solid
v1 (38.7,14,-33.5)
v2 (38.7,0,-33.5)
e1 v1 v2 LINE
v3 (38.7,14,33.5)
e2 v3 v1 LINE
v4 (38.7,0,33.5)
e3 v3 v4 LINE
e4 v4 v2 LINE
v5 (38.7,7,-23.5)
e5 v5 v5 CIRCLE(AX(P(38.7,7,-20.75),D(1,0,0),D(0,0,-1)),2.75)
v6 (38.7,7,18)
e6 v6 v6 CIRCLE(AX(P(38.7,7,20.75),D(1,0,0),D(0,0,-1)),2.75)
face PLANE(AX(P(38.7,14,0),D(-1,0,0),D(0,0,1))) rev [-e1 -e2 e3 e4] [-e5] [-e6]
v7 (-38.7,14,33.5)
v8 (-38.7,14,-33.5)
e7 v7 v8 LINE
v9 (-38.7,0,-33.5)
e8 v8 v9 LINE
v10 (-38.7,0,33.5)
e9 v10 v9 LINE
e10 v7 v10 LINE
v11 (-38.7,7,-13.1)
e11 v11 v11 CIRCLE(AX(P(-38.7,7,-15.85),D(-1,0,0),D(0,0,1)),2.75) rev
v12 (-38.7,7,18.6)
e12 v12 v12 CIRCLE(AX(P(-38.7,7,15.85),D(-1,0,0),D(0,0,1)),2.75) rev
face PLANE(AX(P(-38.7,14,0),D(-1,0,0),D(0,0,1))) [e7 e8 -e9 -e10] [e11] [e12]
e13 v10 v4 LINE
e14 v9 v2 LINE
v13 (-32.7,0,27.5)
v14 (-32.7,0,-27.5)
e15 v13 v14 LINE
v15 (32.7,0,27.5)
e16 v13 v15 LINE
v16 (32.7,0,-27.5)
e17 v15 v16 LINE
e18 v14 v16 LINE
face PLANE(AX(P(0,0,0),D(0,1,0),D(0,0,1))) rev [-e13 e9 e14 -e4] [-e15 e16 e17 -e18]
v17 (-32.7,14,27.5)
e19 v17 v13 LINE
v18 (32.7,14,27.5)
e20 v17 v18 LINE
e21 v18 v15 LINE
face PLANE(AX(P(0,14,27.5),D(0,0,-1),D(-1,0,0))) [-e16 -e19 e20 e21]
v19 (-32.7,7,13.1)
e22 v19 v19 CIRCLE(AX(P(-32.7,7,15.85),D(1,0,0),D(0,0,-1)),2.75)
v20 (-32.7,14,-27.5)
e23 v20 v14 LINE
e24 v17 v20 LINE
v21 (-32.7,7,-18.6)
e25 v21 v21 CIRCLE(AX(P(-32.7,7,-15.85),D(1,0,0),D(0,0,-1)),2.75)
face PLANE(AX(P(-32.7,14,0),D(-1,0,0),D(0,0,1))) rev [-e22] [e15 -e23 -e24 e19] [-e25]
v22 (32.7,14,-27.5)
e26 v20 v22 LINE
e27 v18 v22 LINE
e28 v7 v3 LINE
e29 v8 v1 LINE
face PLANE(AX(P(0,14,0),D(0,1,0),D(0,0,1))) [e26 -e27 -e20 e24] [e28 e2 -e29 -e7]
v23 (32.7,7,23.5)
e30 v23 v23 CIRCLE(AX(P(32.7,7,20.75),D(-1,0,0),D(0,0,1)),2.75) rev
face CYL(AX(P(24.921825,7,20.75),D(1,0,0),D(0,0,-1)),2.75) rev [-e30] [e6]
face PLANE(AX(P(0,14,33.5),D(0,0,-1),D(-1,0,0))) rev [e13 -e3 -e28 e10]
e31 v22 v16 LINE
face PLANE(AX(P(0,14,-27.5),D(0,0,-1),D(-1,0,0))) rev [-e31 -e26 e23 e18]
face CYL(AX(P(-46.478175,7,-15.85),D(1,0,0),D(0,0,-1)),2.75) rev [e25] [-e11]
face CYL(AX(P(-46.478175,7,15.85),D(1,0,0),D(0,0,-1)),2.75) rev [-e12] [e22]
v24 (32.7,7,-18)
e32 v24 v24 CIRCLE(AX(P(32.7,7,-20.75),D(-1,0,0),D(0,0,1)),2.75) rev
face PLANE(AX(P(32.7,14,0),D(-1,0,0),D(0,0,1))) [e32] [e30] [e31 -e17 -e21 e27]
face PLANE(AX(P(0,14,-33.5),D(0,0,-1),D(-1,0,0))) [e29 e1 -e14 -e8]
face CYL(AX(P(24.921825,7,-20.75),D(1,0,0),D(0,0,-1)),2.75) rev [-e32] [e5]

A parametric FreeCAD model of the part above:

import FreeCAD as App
import Part
import Sketcher
from FreeCAD import Vector


def add_polygon(sketch, points):
    """Adds a closed chain of lines whose ends are joined by coincident constraints."""
    first, n = sketch.GeometryCount, len(points)
    for a, b in zip(points, points[1:] + points[:1]):
        sketch.addGeometry(Part.LineSegment(App.Vector(*a, 0), App.Vector(*b, 0)), False)
    for i in range(n):
        sketch.addConstraint(Sketcher.Constraint("Coincident", first + i, 2, first + (i + 1) % n, 1))

doc = App.newDocument("Part")
body = doc.addObject("PartDesign::Body", "Body")

# Sketch on XZ plane
sketch1 = body.newObject("Sketcher::SketchObject", "Sketch")
sketch1.AttachmentSupport = (doc.getObject("XZ_Plane"), [""])
sketch1.MapMode = "FlatFace"
add_polygon(sketch1, [(-39, -34), (-39, 34), (39, 34), (39, -34)])  # lines 0-3
add_polygon(sketch1, [(33, 28), (-33, 28), (-33, -28), (33, -28)])  # lines 4-7
sketch1.addConstraint([
    Sketcher.Constraint("Vertical", 0),
    Sketcher.Constraint("Horizontal", 1),
    Sketcher.Constraint("Vertical", 2),
    Sketcher.Constraint("Horizontal", 3),
    Sketcher.Constraint("Horizontal", 4),
    Sketcher.Constraint("Vertical", 5),
    Sketcher.Constraint("Horizontal", 6),
    Sketcher.Constraint("Vertical", 7),
    Sketcher.Constraint("Symmetric", 0, 2, 2, 2, -1, 1),
    Sketcher.Constraint("Symmetric", 4, 2, 6, 2, -1, 1),
    Sketcher.Constraint("DistanceY", 0, 1, 0, 2, 67.0),
    Sketcher.Constraint("DistanceY", 5, 2, 5, 1, 55.0),
    Sketcher.Constraint("DistanceX", 1, 1, 1, 2, 77.4),
    Sketcher.Constraint("DistanceX", 4, 2, 4, 1, 65.4),
])
pad1 = body.newObject("PartDesign::Pad", "Pad")
pad1.Profile = sketch1
pad1.Length = 14
pad1.Reversed = True

# Sketch on YZ plane
sketch2 = body.newObject("Sketcher::SketchObject", "Sketch001")
sketch2.AttachmentSupport = (doc.getObject("YZ_Plane"), [""])
sketch2.MapMode = "FlatFace"
sketch2.AttachmentOffset = App.Placement(Vector(0, 0, 38.7), App.Rotation())
sketch2.addGeometry([
    Part.Circle(Vector(7, 20.8, 0), Vector(0, 0, 1), 2.8),
    Part.Circle(Vector(7, -20.8, 0), Vector(0, 0, 1), 2.8),
], False)
sketch2.addConstraint([
    Sketcher.Constraint("Equal", 0, 1),
    Sketcher.Constraint("Symmetric", 0, 3, 1, 3, -1),
    Sketcher.Constraint("Diameter", 0, 5.5),
    Sketcher.Constraint("DistanceX", -1, 1, 0, 3, 7.0),
    Sketcher.Constraint("DistanceY", 1, 3, 0, 3, 41.5),
])
pocket1 = body.newObject("PartDesign::Pocket", "Pocket")
pocket1.Profile = sketch2
pocket1.Length = 6

# Sketch on YZ plane
sketch3 = body.newObject("Sketcher::SketchObject", "Sketch002")
sketch3.AttachmentSupport = (doc.getObject("YZ_Plane"), [""])
sketch3.MapMode = "FlatFace"
sketch3.AttachmentOffset = App.Placement(Vector(0, 0, -32.7), App.Rotation())
sketch3.addGeometry([
    Part.Circle(Vector(7, -15.8, 0), Vector(0, 0, 1), 2.8),
    Part.Circle(Vector(7, 15.8, 0), Vector(0, 0, 1), 2.8),
], False)
sketch3.addConstraint([
    Sketcher.Constraint("Equal", 0, 1),
    Sketcher.Constraint("Symmetric", 0, 3, 1, 3, -1),
    Sketcher.Constraint("Diameter", 0, 5.5),
    Sketcher.Constraint("DistanceX", -1, 1, 0, 3, 7.0),
    Sketcher.Constraint("DistanceY", 0, 3, 1, 3, 31.7),
])
pocket2 = body.newObject("PartDesign::Pocket", "Pocket001")
pocket2.Profile = sketch3
pocket2.Length = 6

doc.recompute()
